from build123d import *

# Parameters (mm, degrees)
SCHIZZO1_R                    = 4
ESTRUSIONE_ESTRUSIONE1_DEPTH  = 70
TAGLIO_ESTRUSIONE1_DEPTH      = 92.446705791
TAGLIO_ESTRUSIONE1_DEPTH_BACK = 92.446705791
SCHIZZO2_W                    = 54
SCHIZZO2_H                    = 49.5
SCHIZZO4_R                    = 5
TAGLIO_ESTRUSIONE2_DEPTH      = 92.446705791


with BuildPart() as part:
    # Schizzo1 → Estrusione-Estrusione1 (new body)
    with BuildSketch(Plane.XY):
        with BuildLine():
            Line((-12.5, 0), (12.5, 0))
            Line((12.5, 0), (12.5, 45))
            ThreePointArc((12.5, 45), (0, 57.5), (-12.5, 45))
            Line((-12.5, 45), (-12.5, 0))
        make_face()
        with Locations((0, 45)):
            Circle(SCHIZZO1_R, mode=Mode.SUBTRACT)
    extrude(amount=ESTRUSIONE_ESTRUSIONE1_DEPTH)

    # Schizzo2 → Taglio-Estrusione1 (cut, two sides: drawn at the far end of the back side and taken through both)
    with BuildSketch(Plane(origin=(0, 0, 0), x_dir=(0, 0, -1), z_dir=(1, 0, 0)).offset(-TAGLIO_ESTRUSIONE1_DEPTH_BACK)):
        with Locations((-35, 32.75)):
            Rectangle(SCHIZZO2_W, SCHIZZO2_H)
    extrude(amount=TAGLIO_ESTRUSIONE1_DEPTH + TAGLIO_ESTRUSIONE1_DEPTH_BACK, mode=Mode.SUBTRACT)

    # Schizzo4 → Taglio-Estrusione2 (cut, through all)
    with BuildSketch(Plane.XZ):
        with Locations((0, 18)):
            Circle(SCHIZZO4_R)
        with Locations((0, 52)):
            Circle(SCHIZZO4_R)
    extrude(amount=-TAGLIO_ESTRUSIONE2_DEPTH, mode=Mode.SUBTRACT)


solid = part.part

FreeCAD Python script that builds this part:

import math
import FreeCAD as App
import Part
import Sketcher
from FreeCAD import Vector

doc = App.newDocument("Part")
body = doc.addObject("PartDesign::Body", "Body")

# Sketch on XY plane
sketch1 = body.newObject("Sketcher::SketchObject", "Sketch")
sketch1.AttachmentSupport = (doc.getObject("XY_Plane"), [""])
sketch1.MapMode = "FlatFace"
sketch1.addGeometry(Part.LineSegment(Vector(-12.5, 0, 0), Vector(12.5, 0, 0)), False)
sketch1.addGeometry(Part.LineSegment(Vector(12.5, 0, 0), Vector(12.5, 45, 0)), False)
sketch1.addGeometry(Part.ArcOfCircle(Part.Circle(Vector(0, 45, 0), Vector(0, 0, 1), 12.5), math.radians(0), math.radians(180)), False)
sketch1.addGeometry(Part.LineSegment(Vector(-12.5, 45, 0), Vector(-12.5, 0, 0)), False)
sketch1.addGeometry(Part.Circle(Vector(0, 45, 0), Vector(0, 0, 1), 4), False)
sketch1.addConstraint(Sketcher.Constraint("Coincident", 0, 2, 1, 1))
sketch1.addConstraint(Sketcher.Constraint("Tangent", 1, 2, 2, 1))
sketch1.addConstraint(Sketcher.Constraint("Tangent", 2, 2, 3, 1))
sketch1.addConstraint(Sketcher.Constraint("Coincident", 3, 2, 0, 1))
sketch1.addConstraint(Sketcher.Constraint("Horizontal", 0))
sketch1.addConstraint(Sketcher.Constraint("Vertical", 1))
sketch1.addConstraint(Sketcher.Constraint("Vertical", 3))
sketch1.addConstraint(Sketcher.Constraint("Coincident", 4, 3, 2, 3))
sketch1.addConstraint(Sketcher.Constraint("Symmetric", 0, 2, 3, 2, -1, 1))
sketch1.addConstraint(Sketcher.Constraint("Diameter", 4, 8.0))
sketch1.addConstraint(Sketcher.Constraint("Radius", 2, 12.5))
sketch1.addConstraint(Sketcher.Constraint("DistanceY", 1, 1, 1, 2, 45.0))
pad1 = body.newObject("PartDesign::Pad", "Pad")
pad1.Profile = sketch1
pad1.Length = 70

# Sketch on YZ plane
sketch2 = body.newObject("Sketcher::SketchObject", "Sketch001")
sketch2.AttachmentSupport = (doc.getObject("YZ_Plane"), [""])
sketch2.MapMode = "FlatFace"
sketch2.addGeometry(Part.LineSegment(Vector(58, 62, 0), Vector(8, 62, 0)), False)
sketch2.addGeometry(Part.LineSegment(Vector(8, 62, 0), Vector(8, 8, 0)), False)
sketch2.addGeometry(Part.LineSegment(Vector(8, 8, 0), Vector(58, 8, 0)), False)
sketch2.addGeometry(Part.LineSegment(Vector(58, 8, 0), Vector(58, 62, 0)), False)
sketch2.addConstraint(Sketcher.Constraint("Coincident", 0, 2, 1, 1))
sketch2.addConstraint(Sketcher.Constraint("Coincident", 1, 2, 2, 1))
sketch2.addConstraint(Sketcher.Constraint("Coincident", 2, 2, 3, 1))
sketch2.addConstraint(Sketcher.Constraint("Coincident", 3, 2, 0, 1))
sketch2.addConstraint(Sketcher.Constraint("Horizontal", 0))
sketch2.addConstraint(Sketcher.Constraint("Vertical", 1))
sketch2.addConstraint(Sketcher.Constraint("Horizontal", 2))
sketch2.addConstraint(Sketcher.Constraint("Vertical", 3))
sketch2.addConstraint(Sketcher.Constraint("DistanceY", 1, 2, 1, 1, 54.0))
sketch2.addConstraint(Sketcher.Constraint("DistanceX", 0, 2, 0, 1, 49.5))
sketch2.addConstraint(Sketcher.Constraint("DistanceX", -1, 1, 0, 2, 8.0))
sketch2.addConstraint(Sketcher.Constraint("DistanceY", -1, 1, 0, 2, 62.0))
pocket1 = body.newObject("PartDesign::Pocket", "Pocket")
pocket1.Profile = sketch2
pocket1.Type = "ThroughAll"
pocket1.Midplane = True

# Sketch on XZ plane
sketch3 = body.newObject("Sketcher::SketchObject", "Sketch002")
sketch3.AttachmentSupport = (doc.getObject("XZ_Plane"), [""])
sketch3.MapMode = "FlatFace"
sketch3.addGeometry(Part.Circle(Vector(0, 18, 0), Vector(0, 0, 1), 5), False)
sketch3.addGeometry(Part.Circle(Vector(0, 52, 0), Vector(0, 0, 1), 5), False)
sketch3.addConstraint(Sketcher.Constraint("Equal", 0, 1))
sketch3.addConstraint(Sketcher.Constraint("PointOnObject", 0, 3, -2))
sketch3.addConstraint(Sketcher.Constraint("PointOnObject", 1, 3, -2))
sketch3.addConstraint(Sketcher.Constraint("Diameter", 0, 10.0))
sketch3.addConstraint(Sketcher.Constraint("DistanceY", -1, 1, 0, 3, 18.0))
sketch3.addConstraint(Sketcher.Constraint("DistanceY", -1, 1, 1, 3, 52.0))
pocket2 = body.newObject("PartDesign::Pocket", "Pocket001")
pocket2.Profile = sketch3
pocket2.Type = "ThroughAll"

doc.recompute()
